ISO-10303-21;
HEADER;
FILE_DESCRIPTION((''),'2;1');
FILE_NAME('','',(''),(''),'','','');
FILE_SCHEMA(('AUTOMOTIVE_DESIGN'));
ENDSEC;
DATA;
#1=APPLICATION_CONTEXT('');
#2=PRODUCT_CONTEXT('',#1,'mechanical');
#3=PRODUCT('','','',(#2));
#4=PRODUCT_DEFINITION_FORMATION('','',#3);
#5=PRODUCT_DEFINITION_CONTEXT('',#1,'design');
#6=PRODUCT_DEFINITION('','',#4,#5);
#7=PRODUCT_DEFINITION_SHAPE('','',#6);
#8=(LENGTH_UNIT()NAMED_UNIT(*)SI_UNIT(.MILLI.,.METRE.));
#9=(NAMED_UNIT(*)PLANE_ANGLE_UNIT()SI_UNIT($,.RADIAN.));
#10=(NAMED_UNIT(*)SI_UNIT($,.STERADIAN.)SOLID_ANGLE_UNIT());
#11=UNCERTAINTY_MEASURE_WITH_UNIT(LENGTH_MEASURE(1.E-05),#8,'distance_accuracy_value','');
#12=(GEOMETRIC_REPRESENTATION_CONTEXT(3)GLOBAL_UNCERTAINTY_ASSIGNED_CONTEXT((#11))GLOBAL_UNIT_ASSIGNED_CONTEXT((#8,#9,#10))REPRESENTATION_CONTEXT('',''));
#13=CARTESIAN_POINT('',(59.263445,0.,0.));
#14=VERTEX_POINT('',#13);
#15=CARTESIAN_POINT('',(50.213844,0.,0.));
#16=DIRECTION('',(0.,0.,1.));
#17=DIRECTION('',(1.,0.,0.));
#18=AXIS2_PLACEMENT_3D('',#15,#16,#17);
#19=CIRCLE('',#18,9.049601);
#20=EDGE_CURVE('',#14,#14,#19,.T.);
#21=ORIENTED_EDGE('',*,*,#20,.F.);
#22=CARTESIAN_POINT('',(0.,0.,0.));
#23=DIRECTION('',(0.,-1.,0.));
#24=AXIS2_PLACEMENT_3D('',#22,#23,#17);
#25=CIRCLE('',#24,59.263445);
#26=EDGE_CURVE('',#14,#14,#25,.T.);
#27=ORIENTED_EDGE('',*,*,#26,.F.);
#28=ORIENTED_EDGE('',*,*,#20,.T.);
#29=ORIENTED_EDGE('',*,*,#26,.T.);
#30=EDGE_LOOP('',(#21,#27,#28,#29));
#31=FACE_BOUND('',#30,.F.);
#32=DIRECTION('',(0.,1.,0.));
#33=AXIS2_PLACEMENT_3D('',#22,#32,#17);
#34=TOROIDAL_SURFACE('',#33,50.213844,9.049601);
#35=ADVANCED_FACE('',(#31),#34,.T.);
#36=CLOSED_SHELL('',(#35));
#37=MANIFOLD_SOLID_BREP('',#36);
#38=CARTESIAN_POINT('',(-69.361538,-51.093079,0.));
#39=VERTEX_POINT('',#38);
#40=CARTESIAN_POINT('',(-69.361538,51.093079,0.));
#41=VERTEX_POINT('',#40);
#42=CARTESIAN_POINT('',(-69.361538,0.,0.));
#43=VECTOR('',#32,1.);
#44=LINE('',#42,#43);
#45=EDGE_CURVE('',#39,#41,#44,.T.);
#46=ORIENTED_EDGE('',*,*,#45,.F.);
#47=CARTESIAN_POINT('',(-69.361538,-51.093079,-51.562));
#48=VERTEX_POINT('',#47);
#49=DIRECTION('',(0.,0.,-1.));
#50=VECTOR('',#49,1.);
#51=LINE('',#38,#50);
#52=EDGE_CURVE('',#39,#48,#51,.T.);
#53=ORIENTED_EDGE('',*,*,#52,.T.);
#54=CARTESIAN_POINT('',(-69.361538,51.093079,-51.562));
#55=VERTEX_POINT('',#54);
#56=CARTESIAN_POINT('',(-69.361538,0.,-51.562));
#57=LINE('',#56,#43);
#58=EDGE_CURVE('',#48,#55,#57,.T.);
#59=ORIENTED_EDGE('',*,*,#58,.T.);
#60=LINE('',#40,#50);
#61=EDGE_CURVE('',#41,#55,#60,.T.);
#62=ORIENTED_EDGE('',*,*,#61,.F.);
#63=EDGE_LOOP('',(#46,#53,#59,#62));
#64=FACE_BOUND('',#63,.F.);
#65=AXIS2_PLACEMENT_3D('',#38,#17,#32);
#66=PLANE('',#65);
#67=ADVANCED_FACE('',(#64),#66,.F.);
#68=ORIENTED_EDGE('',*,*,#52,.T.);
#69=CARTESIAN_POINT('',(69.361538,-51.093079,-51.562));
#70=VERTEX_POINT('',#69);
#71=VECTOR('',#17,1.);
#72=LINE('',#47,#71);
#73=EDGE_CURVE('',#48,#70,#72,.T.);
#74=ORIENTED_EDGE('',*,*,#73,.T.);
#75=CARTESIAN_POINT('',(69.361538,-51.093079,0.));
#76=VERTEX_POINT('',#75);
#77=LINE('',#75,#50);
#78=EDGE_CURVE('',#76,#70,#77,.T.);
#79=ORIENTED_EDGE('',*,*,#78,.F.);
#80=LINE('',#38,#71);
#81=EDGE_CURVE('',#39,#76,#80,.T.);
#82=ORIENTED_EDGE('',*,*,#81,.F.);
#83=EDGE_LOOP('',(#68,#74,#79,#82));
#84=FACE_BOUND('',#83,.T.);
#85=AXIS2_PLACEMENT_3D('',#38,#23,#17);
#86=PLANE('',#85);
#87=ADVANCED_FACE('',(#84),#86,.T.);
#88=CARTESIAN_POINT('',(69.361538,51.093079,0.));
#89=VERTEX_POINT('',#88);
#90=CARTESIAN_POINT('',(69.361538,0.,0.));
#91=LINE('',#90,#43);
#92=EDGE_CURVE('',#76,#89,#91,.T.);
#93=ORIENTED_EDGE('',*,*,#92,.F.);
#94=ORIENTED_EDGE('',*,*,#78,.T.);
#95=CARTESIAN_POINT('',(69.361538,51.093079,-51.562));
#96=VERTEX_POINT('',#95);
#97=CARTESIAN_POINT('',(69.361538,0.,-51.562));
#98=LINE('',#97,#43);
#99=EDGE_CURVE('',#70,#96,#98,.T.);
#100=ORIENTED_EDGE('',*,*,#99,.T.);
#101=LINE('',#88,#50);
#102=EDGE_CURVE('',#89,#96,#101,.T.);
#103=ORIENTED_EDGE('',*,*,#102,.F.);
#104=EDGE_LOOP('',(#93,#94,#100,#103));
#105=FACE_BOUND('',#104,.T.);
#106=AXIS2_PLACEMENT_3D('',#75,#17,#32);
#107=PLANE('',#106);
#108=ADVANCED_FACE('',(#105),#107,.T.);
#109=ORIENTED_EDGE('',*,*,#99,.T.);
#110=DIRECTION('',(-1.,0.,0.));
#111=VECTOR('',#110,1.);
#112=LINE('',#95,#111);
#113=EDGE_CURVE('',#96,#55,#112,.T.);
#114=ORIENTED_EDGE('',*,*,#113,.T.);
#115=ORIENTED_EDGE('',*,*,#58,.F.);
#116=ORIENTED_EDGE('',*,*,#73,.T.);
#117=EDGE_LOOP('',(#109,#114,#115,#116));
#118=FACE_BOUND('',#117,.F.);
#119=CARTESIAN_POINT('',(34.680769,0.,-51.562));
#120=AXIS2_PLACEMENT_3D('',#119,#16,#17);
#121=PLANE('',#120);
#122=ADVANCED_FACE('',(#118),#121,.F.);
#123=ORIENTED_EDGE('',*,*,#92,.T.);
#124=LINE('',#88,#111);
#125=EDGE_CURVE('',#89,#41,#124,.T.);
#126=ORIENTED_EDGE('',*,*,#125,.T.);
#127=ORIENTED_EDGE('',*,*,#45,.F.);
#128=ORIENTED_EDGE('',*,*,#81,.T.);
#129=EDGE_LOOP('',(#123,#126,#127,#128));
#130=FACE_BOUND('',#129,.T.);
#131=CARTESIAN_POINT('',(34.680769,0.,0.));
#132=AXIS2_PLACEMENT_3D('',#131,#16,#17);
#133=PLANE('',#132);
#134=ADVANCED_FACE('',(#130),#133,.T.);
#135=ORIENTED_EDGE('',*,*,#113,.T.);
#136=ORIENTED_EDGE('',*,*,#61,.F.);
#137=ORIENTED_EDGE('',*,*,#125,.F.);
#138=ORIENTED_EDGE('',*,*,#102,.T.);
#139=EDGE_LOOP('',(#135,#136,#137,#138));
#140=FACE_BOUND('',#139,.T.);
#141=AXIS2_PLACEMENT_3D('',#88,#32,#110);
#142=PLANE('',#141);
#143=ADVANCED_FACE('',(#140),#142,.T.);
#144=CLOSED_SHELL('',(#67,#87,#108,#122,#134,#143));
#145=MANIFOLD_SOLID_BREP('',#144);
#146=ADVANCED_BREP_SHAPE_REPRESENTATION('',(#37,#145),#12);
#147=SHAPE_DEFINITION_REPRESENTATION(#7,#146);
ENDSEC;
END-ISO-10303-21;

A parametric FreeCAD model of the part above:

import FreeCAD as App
import Part
import Sketcher
from FreeCAD import Vector
Q = App.Units.Quantity


def add_polygon(sketch, points):
    """Adds a closed chain of lines whose ends are joined by coincident constraints."""
    first, n = sketch.GeometryCount, len(points)
    for a, b in zip(points, points[1:] + points[:1]):
        sketch.addGeometry(Part.LineSegment(App.Vector(*a, 0), App.Vector(*b, 0)), False)
    for i in range(n):
        sketch.addConstraint(Sketcher.Constraint("Coincident", first + i, 2, first + (i + 1) % n, 1))

doc = App.newDocument("Part")
params = doc.addObject("Spreadsheet::Sheet", "Params")
for row, (alias, value) in enumerate([
    ("pad1_length", "2.03 in"),
    ("revolution_angle", "360 deg"),
], start=1):
    params.set(f"A{row}", alias)
    params.set(f"B{row}", "=" + value)
    params.setAlias(f"B{row}", alias)

body = doc.addObject("PartDesign::Body", "Body")

# Sketch on XY plane
sketch1 = body.newObject("Sketcher::SketchObject", "Sketch")
sketch1.AttachmentSupport = (doc.getObject("XY_Plane"), [""])
sketch1.MapMode = "FlatFace"
add_polygon(sketch1, [(69, -51), (69, 51), (-69, 51), (-69, -51)])  # lines 0-3
sketch1.addConstraint([
    Sketcher.Constraint("Vertical", 0),
    Sketcher.Constraint("Horizontal", 1),
    Sketcher.Constraint("Vertical", 2),
    Sketcher.Constraint("Horizontal", 3),
    Sketcher.Constraint("Symmetric", 0, 2, 2, 2, -1, 1),
    Sketcher.Constraint("DistanceY", 0, 1, 0, 2, Q("102.186158 mm")),
    Sketcher.Constraint("DistanceX", 1, 2, 1, 1, Q("138.723076 mm")),
])
pad1 = body.newObject("PartDesign::Pad", "Pad")
pad1.Profile = sketch1
pad1.setExpression("Length", "Params.pad1_length")
pad1.Reversed = True
body2 = doc.addObject("PartDesign::Body", "Body001")

# Sketch on XY plane
sketch2 = body2.newObject("Sketcher::SketchObject", "Sketch001")
sketch2.AttachmentSupport = (doc.getObject("XY_Plane001"), [""])
sketch2.MapMode = "FlatFace"
sketch2.addGeometry(Part.Circle(Vector(50, 0, 0), Vector(0, 0, 1), 9), False)
sketch2.addConstraint([
    Sketcher.Constraint("PointOnObject", 0, 3, -1),
    Sketcher.Constraint("Diameter", 0, Q("18.099202 mm")),
    Sketcher.Constraint("DistanceX", -1, 1, 0, 3, Q("50.213844 mm")),
])
revolution = body2.newObject("PartDesign::Revolution", "Revolution")
revolution.Profile = sketch2
revolution.ReferenceAxis = (sketch2, ["V_Axis"])
revolution.setExpression("Angle", "Params.revolution_angle")

doc.recompute()
